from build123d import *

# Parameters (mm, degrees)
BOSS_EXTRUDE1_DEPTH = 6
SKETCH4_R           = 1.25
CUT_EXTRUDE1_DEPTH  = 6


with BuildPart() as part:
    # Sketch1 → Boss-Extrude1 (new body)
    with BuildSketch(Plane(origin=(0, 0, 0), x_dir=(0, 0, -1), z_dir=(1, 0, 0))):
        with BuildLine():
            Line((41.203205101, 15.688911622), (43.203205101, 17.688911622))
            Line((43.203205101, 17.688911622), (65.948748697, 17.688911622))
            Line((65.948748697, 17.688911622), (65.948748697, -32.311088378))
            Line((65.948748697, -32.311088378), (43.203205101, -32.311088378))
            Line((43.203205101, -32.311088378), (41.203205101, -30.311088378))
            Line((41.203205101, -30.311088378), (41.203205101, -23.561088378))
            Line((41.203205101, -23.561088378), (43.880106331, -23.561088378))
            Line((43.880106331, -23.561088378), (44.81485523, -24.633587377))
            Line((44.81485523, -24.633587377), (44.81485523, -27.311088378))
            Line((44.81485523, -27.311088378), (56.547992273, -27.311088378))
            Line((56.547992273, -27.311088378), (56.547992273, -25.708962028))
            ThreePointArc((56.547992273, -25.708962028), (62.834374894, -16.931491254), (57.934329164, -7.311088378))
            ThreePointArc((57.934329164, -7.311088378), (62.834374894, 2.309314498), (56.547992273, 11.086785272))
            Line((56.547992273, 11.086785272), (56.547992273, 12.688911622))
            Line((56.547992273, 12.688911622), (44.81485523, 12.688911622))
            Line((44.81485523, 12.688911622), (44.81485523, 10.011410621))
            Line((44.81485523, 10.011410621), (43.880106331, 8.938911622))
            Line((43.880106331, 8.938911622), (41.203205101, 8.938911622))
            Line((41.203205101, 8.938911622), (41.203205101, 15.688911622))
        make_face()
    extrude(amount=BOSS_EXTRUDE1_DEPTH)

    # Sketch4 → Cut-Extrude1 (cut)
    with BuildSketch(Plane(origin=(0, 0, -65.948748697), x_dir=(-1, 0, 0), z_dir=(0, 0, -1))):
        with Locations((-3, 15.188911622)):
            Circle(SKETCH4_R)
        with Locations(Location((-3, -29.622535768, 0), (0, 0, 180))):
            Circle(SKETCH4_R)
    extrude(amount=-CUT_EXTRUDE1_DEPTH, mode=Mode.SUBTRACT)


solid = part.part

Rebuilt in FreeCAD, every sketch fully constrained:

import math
import FreeCAD as App
import Part
import Sketcher

doc = App.newDocument("Part")
params = doc.addObject("Spreadsheet::Sheet", "Params")
for row, (alias, value) in enumerate([
    ("sketch1_width", "50 mm"),
    ("sketch1_width2", "6.75 mm"),
    ("pad1_length", "6 mm"),
    ("sketch2_diameter", "2.5 mm"),
    ("pocket1_length", "6 mm"),
], start=1):
    params.set(f"A{row}", alias)
    params.set(f"B{row}", "=" + value)
    params.setAlias(f"B{row}", alias)

body = doc.addObject("PartDesign::Body", "Body")

# Sketch on YZ plane
sketch1 = body.newObject("Sketcher::SketchObject", "Sketch")
sketch1.AttachmentSupport = (doc.getObject("YZ_Plane"), [""])
sketch1.MapMode = "FlatFace"
sketch1.addGeometry([
    Part.LineSegment(App.Vector(17.7, -43.2, 0), App.Vector(15.7, -41.2, 0)),  # 0
    Part.LineSegment(App.Vector(15.7, -41.2, 0), App.Vector(8.9, -41.2, 0)),  # 1
    Part.LineSegment(App.Vector(8.9, -41.2, 0), App.Vector(8.9, -43.9, 0)),  # 2
    Part.LineSegment(App.Vector(8.9, -43.9, 0), App.Vector(10, -44.8, 0)),  # 3
    Part.LineSegment(App.Vector(10, -44.8, 0), App.Vector(12.7, -44.8, 0)),  # 4
    Part.LineSegment(App.Vector(12.7, -44.8, 0), App.Vector(12.7, -56.5, 0)),  # 5
    Part.LineSegment(App.Vector(12.7, -56.5, 0), App.Vector(11.1, -56.5, 0)),  # 6
    Part.ArcOfCircle(Part.Circle(App.Vector(1.5, -52.5, 0), App.Vector(0, 0, 1), 10.4), math.radians(-148), math.radians(-23)),  # 7
    Part.ArcOfCircle(Part.Circle(App.Vector(-16.2, -52.5, 0), App.Vector(0, 0, 1), 10.4), math.radians(-157), math.radians(-32)),  # 8
    Part.LineSegment(App.Vector(-25.7, -56.5, 0), App.Vector(-27.3, -56.5, 0)),  # 9
    Part.LineSegment(App.Vector(-27.3, -56.5, 0), App.Vector(-27.3, -44.8, 0)),  # 10
    Part.LineSegment(App.Vector(-27.3, -44.8, 0), App.Vector(-24.6, -44.8, 0)),  # 11
    Part.LineSegment(App.Vector(-24.6, -44.8, 0), App.Vector(-23.6, -43.9, 0)),  # 12
    Part.LineSegment(App.Vector(-23.6, -43.9, 0), App.Vector(-23.6, -41.2, 0)),  # 13
    Part.LineSegment(App.Vector(-23.6, -41.2, 0), App.Vector(-30.3, -41.2, 0)),  # 14
    Part.LineSegment(App.Vector(-30.3, -41.2, 0), App.Vector(-32.3, -43.2, 0)),  # 15
    Part.LineSegment(App.Vector(-32.3, -43.2, 0), App.Vector(-32.3, -65.9, 0)),  # 16
    Part.LineSegment(App.Vector(-32.3, -65.9, 0), App.Vector(17.7, -65.9, 0)),  # 17
    Part.LineSegment(App.Vector(17.7, -65.9, 0), App.Vector(17.7, -43.2, 0)),  # 18
], False)
sketch1.addConstraint([
    Sketcher.Constraint("Coincident", 0, 2, 1, 1),
    Sketcher.Constraint("Coincident", 1, 2, 2, 1),
    Sketcher.Constraint("Coincident", 2, 2, 3, 1),
    Sketcher.Constraint("Coincident", 3, 2, 4, 1),
    Sketcher.Constraint("Coincident", 4, 2, 5, 1),
    Sketcher.Constraint("Coincident", 5, 2, 6, 1),
    Sketcher.Constraint("Coincident", 6, 2, 7, 2),
    Sketcher.Constraint("Coincident", 7, 1, 8, 2),
    Sketcher.Constraint("Coincident", 8, 1, 9, 1),
    Sketcher.Constraint("Coincident", 9, 2, 10, 1),
    Sketcher.Constraint("Coincident", 10, 2, 11, 1),
    Sketcher.Constraint("Coincident", 11, 2, 12, 1),
    Sketcher.Constraint("Coincident", 12, 2, 13, 1),
    Sketcher.Constraint("Coincident", 13, 2, 14, 1),
    Sketcher.Constraint("Coincident", 14, 2, 15, 1),
    Sketcher.Constraint("Coincident", 15, 2, 16, 1),
    Sketcher.Constraint("Coincident", 16, 2, 17, 1),
    Sketcher.Constraint("Coincident", 17, 2, 18, 1),
    Sketcher.Constraint("Coincident", 18, 2, 0, 1),
    Sketcher.Constraint("Horizontal", 1),
    Sketcher.Constraint("Vertical", 2),
    Sketcher.Constraint("Horizontal", 4),
    Sketcher.Constraint("Vertical", 5),
    Sketcher.Constraint("Horizontal", 6),
    Sketcher.Constraint("Horizontal", 9),
    Sketcher.Constraint("Vertical", 10),
    Sketcher.Constraint("Horizontal", 11),
    Sketcher.Constraint("Vertical", 13),
    Sketcher.Constraint("Horizontal", 14),
    Sketcher.Constraint("Vertical", 16),
    Sketcher.Constraint("Horizontal", 17),
    Sketcher.Constraint("Vertical", 18),
    Sketcher.Constraint("Equal", 7, 8),
    Sketcher.Constraint("Perpendicular", 0, 15),
    Sketcher.Constraint("Horizontal", 7, 3, 8, 3),
    Sketcher.Constraint("Horizontal", 6, 2, 8, 1),
    Sketcher.Constraint("Horizontal", 4, 2, 10, 2),
    Sketcher.Constraint("Horizontal", 2, 2, 12, 2),
    Sketcher.Constraint("Horizontal", 1, 2, 13, 2),
    Sketcher.Constraint("Horizontal", 15, 2, 18, 2),
    Sketcher.Constraint("Equal", 6, 9),
    Sketcher.Constraint("Equal", 4, 11),
    Sketcher.Constraint("Equal", 1, 14),
    Sketcher.Constraint("Equal", 3, 12),
    Sketcher.Constraint("Equal", 0, 15),
    Sketcher.Constraint("DistanceX", 17, 1, 17, 2, 50.0),
    Sketcher.Constraint("DistanceX", 4, 2, 0, 2, 3.0),
    Sketcher.Constraint("DistanceX", 7, 1, 5, 2, 20.0),
    Sketcher.Constraint("DistanceX", 1, 2, 1, 1, 6.75),
    Sketcher.Constraint("DistanceY", 7, 3, 0, 2, 11.27),
    Sketcher.Constraint("DistanceX", 4, 1, 4, 2, 2.677501),
    Sketcher.Constraint("DistanceY", 2, 2, 2, 1, 2.676901),
    Sketcher.Constraint("Radius", 7, 10.390544),
    Sketcher.Constraint("DistanceX", 6, 2, 6, 1, 1.602126),
    Sketcher.Constraint("DistanceY", 5, 2, 5, 1, 11.733137),
    Sketcher.Constraint("DistanceY", 16, 2, 16, 1, 22.745544),
    Sketcher.Constraint("DistanceX", -1, 1, 7, 3, 1.528568),
    Sketcher.Constraint("DistanceX", -1, 1, 0, 2, 15.688912),
    Sketcher.Constraint("DistanceY", 7, 1, -1, 1, 57.934329),
])
sketch1.setExpression("Constraints[45]", "Params.sketch1_width")
sketch1.setExpression("Constraints[48]", "Params.sketch1_width2")
pad1 = body.newObject("PartDesign::Pad", "Pad")
pad1.Profile = sketch1
pad1.setExpression("Length", "Params.pad1_length")

# Sketch on XY plane
sketch2 = body.newObject("Sketcher::SketchObject", "Sketch001")
sketch2.AttachmentSupport = (doc.getObject("XY_Plane"), [""])
sketch2.MapMode = "FlatFace"
sketch2.AttachmentOffset = App.Placement(App.Vector(0, 0, -65.948749), App.Rotation())
sketch2.addGeometry([
    Part.Circle(App.Vector(3, 15.2, 0), App.Vector(0, 0, 1), 1.2),
    Part.Circle(App.Vector(3, -29.6, 0), App.Vector(0, 0, 1), 1.2),
], False)
sketch2.addConstraint([
    Sketcher.Constraint("Equal", 0, 1),
    Sketcher.Constraint("Vertical", 0, 3, 1, 3),
    Sketcher.Constraint("Diameter", 0, 2.5),
    Sketcher.Constraint("DistanceX", -1, 1, 0, 3, 3.0),
    Sketcher.Constraint("DistanceY", -1, 1, 0, 3, 15.188912),
    Sketcher.Constraint("DistanceY", 1, 3, -1, 1, 29.622536),
])
sketch2.setExpression("Constraints[2]", "Params.sketch2_diameter")
pocket1 = body.newObject("PartDesign::Pocket", "Pocket")
pocket1.Profile = sketch2
pocket1.setExpression("Length", "Params.pocket1_length")
pocket1.Reversed = True

doc.recompute()
